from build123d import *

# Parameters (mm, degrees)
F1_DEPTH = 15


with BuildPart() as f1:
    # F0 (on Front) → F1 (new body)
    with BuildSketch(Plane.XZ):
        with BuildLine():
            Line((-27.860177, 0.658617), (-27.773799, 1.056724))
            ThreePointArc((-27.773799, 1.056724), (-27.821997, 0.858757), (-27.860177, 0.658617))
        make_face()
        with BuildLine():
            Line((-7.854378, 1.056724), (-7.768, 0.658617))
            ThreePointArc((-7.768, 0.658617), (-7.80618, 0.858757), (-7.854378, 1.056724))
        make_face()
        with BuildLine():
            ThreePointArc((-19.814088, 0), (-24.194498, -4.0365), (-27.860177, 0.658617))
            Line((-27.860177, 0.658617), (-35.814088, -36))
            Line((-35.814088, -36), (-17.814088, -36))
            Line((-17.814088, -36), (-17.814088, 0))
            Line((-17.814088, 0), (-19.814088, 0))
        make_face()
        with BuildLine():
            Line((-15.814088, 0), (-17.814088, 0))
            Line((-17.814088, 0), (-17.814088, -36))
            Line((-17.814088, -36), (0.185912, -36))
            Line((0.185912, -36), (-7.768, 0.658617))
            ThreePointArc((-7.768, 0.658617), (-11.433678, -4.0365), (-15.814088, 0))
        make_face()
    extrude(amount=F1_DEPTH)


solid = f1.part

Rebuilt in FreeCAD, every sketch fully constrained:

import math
import FreeCAD as App
import Part
import Sketcher

V = App.Vector

doc = App.newDocument("Part")
body = doc.addObject("PartDesign::Body", "Body")
body.AllowCompound = True

# Sketch on XZ plane
sketch1 = doc.addObject("Sketcher::SketchObject", "Sketch")
body.addObject(sketch1)
sketch1.AttachmentSupport = (doc.XZ_Plane, [""])
sketch1.MapMode = "FlatFace"
sketch1.addGeometry([
    Part.LineSegment(V(-27.86, 0.66, 0), V(-27.77, 1.06, 0)),  # 0
    Part.ArcOfCircle(Part.Circle(V(-23.86, 0, 0), V(0, 0, 1), 4.05), math.radians(164.88), math.radians(170.64)),  # 1
    Part.LineSegment(V(-7.85, 1.06, 0), V(-7.77, 0.66, 0)),  # 2
    Part.ArcOfCircle(Part.Circle(V(-11.76, 0, 0), V(0, 0, 1), 4.05), math.radians(9.36), math.radians(15.12)),  # 3
    Part.ArcOfCircle(Part.Circle(V(-23.86, 0, 0), V(0, 0, 1), 4.05), math.radians(171), math.radians(360)),  # 4
    Part.LineSegment(V(-27.86, 0.66, 0), V(-35.81, -36, 0)),  # 5
    Part.LineSegment(V(-35.81, -36, 0), V(0.19, -36, 0)),  # 6
    Part.LineSegment(V(0.19, -36, 0), V(-7.77, 0.66, 0)),  # 7
    Part.ArcOfCircle(Part.Circle(V(-11.76, 0, 0), V(0, 0, 1), 4.05), math.radians(180), math.radians(369)),  # 8
    Part.LineSegment(V(-15.81, 0, 0), V(-19.81, 0, 0)),  # 9
], False)
sketch1.addConstraint([
    Sketcher.Constraint("Coincident", 0, 1, 1, 2),
    Sketcher.Constraint("Coincident", 1, 1, 0, 2),
    Sketcher.Constraint("Coincident", 2, 1, 3, 2),
    Sketcher.Constraint("Coincident", 3, 1, 2, 2),
    Sketcher.Constraint("Coincident", 4, 1, 5, 1),
    Sketcher.Constraint("Coincident", 5, 2, 6, 1),
    Sketcher.Constraint("Coincident", 6, 2, 7, 1),
    Sketcher.Constraint("Coincident", 7, 2, 8, 2),
    Sketcher.Constraint("Coincident", 8, 1, 9, 1),
    Sketcher.Constraint("Coincident", 9, 2, 4, 2),
    Sketcher.Constraint("Horizontal", 6),
    Sketcher.Constraint("Horizontal", 9),
    Sketcher.Constraint("Coincident", 4, 1, 0, 1),
    Sketcher.Constraint("Coincident", 7, 2, 3, 1),
    Sketcher.Constraint("Equal", 1, 3),
    Sketcher.Constraint("Equal", 4, 8),
    Sketcher.Constraint("PointOnObject", 4, 3, -1),
    Sketcher.Constraint("PointOnObject", 8, 3, -1),
    Sketcher.Constraint("PointOnObject", 8, 1, -1),
    Sketcher.Constraint("Parallel", 0, 5),
    Sketcher.Constraint("Parallel", 2, 7),
    Sketcher.Constraint("Horizontal", 1, 3, 3, 3),
    Sketcher.Constraint("Horizontal", 1, 1, 2, 1),
    Sketcher.Constraint("Horizontal", 0, 1, 3, 1),
    Sketcher.Constraint("DistanceX", 6, 1, 6, 2, 36.0),
    Sketcher.Constraint("DistanceX", 9, 2, 9, 1, 4.0),
    Sketcher.Constraint("Radius", 4, 4.05),
    Sketcher.Constraint("DistanceY", 5, 2, -1, 1, 36.0),
    Sketcher.Constraint("Radius", 1, 4.049752),
    Sketcher.Constraint("DistanceX", 3, 1, -1, 1, 7.768),
    Sketcher.Constraint("DistanceX", 1, 1, -1, 1, 27.773799),
    Sketcher.Constraint("Distance", 0, 0.40737),
])
pad1 = doc.addObject("PartDesign::Pad", "Pad")
body.addObject(pad1)
pad1.Profile = sketch1
pad1.Length = 15

doc.recompute()
